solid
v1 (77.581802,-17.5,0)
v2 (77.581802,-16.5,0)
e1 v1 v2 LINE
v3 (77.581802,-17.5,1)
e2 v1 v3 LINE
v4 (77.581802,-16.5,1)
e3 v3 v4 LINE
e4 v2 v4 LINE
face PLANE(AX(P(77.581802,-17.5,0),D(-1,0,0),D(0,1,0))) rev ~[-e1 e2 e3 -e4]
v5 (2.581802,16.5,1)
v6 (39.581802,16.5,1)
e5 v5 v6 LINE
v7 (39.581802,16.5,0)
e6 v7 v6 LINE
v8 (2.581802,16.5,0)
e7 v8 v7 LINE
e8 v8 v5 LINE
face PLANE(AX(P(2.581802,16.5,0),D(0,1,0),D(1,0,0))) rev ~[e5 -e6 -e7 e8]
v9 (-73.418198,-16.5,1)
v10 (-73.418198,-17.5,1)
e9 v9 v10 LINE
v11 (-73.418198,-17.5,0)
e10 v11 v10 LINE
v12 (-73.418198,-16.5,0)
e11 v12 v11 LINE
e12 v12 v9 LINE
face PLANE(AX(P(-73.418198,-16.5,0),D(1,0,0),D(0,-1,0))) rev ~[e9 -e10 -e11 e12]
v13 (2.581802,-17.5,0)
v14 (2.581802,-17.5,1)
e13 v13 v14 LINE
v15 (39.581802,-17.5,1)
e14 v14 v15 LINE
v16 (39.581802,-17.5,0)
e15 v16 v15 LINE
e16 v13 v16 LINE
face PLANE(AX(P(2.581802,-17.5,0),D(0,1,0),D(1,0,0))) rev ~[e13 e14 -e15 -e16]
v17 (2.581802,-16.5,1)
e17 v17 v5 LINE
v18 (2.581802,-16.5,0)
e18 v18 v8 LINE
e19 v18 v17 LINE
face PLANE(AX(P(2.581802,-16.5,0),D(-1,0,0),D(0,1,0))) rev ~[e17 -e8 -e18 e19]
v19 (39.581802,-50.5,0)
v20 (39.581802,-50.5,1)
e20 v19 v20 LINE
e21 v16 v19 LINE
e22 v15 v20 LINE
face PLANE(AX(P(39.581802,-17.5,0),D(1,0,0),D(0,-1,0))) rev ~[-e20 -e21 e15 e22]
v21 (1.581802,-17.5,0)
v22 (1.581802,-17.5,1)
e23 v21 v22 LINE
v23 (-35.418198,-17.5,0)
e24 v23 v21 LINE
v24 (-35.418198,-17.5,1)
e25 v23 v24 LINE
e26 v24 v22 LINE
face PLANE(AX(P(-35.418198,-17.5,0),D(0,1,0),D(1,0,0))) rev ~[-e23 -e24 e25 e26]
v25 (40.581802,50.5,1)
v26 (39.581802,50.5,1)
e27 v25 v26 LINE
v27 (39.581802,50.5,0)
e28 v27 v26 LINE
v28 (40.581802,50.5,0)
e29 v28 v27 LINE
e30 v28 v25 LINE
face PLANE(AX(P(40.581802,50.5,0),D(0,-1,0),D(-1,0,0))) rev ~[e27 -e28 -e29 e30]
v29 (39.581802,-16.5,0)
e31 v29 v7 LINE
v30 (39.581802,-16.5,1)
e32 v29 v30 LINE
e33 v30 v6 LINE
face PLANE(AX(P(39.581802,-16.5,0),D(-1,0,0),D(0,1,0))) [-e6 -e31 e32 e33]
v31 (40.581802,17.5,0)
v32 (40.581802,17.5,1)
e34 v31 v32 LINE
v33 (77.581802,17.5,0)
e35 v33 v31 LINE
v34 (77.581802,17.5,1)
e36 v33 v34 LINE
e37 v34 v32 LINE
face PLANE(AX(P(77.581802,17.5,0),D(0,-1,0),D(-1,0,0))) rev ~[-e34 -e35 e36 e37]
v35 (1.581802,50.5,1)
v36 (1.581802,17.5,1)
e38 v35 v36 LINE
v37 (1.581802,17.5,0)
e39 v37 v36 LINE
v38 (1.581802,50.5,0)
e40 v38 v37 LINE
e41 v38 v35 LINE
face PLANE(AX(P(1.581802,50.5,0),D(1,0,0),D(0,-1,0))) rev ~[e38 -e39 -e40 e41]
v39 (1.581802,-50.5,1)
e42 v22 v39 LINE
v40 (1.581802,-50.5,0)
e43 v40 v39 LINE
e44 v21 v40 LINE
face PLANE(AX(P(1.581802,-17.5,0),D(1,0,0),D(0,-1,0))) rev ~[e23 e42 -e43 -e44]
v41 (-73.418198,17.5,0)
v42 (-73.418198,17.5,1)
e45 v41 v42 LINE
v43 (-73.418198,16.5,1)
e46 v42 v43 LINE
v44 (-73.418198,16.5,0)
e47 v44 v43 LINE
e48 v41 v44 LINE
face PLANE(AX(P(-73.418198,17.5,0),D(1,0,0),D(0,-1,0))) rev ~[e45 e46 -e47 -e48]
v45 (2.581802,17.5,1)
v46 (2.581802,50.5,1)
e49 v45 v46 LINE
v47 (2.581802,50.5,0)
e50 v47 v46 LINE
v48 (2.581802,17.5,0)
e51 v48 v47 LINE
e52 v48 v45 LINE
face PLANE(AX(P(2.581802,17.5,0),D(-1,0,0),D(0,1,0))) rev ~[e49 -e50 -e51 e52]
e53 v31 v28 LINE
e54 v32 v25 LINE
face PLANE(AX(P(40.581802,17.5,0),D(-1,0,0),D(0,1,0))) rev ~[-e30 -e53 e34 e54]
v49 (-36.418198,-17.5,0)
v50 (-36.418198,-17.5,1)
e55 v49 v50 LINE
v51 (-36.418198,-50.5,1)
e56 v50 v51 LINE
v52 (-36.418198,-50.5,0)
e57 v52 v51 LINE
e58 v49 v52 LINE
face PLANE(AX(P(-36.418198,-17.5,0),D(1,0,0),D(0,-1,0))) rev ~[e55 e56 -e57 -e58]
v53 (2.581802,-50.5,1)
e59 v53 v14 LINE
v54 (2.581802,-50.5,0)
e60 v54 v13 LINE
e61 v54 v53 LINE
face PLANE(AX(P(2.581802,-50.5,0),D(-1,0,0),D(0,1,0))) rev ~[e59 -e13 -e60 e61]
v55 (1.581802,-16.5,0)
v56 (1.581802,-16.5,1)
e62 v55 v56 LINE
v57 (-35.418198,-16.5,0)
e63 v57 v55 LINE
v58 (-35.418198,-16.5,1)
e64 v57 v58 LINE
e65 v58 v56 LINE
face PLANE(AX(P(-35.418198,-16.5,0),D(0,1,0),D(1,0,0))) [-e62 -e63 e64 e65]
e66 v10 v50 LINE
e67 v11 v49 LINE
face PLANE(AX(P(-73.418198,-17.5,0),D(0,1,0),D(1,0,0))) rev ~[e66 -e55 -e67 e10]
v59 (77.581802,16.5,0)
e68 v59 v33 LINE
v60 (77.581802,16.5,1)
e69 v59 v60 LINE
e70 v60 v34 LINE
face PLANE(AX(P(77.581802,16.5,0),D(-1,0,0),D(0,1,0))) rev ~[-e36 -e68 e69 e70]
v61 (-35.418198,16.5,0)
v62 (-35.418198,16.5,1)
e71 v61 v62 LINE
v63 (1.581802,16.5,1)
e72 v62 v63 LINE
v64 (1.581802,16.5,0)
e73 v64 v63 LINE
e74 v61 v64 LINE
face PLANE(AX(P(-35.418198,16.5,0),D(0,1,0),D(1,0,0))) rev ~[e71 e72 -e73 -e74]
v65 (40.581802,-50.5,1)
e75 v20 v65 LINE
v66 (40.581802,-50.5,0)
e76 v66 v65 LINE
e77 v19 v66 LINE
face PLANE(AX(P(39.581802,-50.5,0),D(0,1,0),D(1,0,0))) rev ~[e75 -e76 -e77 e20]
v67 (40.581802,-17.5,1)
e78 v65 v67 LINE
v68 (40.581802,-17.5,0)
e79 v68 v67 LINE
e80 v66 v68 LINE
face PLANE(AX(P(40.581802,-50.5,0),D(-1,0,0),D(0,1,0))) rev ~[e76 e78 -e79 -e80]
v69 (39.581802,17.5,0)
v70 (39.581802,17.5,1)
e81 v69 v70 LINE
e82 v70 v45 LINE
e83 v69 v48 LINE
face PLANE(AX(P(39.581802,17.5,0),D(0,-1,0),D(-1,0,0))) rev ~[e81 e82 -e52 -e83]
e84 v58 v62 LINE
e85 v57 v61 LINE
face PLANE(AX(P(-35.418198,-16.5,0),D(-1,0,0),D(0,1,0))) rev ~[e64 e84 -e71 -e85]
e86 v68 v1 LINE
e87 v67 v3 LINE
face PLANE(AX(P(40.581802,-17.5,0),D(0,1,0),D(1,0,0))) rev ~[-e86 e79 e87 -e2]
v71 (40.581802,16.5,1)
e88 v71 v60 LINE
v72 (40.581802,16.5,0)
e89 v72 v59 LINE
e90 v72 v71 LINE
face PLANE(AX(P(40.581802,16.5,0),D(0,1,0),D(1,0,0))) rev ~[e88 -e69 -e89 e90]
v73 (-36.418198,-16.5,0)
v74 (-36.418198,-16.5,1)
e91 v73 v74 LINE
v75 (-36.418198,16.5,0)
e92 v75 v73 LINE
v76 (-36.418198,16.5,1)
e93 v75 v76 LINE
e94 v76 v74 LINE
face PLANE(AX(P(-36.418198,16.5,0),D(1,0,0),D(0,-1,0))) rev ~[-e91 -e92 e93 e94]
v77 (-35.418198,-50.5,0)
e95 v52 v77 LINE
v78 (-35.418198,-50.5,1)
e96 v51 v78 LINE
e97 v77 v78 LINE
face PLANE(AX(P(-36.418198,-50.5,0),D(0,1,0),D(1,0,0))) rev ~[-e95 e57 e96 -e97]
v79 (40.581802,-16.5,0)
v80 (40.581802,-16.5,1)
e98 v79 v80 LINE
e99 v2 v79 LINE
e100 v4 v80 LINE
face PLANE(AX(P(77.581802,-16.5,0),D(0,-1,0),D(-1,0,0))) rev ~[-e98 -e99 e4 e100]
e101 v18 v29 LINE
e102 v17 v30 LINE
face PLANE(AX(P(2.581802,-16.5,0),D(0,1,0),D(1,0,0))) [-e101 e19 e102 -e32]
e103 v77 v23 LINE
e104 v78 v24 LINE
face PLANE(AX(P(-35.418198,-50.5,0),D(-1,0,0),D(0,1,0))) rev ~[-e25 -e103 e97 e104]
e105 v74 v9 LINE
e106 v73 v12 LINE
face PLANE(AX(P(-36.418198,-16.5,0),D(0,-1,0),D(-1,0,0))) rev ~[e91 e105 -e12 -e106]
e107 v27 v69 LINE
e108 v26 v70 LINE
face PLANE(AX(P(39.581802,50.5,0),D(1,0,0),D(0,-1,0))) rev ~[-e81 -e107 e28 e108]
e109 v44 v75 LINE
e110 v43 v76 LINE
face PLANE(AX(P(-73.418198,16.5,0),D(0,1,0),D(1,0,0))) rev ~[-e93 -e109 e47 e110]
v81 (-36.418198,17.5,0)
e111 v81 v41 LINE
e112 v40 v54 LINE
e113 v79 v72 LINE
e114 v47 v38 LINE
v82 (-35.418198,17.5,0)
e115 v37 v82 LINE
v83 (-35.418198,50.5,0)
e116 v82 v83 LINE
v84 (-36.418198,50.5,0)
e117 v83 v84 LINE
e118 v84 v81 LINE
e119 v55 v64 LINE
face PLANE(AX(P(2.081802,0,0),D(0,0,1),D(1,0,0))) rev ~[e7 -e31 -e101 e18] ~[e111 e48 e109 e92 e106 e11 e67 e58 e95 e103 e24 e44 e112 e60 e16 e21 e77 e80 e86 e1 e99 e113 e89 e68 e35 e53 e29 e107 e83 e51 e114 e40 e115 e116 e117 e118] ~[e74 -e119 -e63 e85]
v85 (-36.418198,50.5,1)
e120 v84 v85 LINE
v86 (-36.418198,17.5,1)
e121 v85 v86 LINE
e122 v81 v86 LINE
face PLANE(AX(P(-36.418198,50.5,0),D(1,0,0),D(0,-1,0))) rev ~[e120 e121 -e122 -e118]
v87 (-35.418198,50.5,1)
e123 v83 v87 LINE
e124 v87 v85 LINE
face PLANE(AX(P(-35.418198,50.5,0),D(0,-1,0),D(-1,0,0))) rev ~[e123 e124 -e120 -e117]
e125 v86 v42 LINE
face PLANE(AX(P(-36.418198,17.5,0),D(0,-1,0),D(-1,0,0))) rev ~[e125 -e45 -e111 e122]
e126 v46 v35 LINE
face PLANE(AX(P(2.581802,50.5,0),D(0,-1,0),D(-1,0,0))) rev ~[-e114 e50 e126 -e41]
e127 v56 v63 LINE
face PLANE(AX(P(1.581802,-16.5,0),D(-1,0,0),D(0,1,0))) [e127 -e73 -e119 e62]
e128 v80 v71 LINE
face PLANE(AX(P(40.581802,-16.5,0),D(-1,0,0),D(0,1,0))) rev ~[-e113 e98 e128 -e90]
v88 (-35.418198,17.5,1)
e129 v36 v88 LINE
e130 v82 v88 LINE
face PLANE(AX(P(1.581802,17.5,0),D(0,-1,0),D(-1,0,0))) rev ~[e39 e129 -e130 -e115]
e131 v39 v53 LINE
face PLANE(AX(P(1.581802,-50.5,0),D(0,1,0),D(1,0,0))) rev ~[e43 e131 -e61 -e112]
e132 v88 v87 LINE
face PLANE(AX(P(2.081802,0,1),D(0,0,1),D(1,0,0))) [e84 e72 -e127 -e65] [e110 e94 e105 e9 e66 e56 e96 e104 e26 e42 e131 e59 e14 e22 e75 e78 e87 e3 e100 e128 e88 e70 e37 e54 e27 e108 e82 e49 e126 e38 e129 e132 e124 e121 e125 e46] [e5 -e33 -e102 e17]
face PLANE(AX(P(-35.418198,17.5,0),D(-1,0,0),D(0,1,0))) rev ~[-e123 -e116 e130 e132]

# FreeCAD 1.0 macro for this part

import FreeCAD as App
import Part
import Sketcher

doc = App.newDocument("Part")
body = doc.addObject("PartDesign::Body", "Body")

sketch1 = body.newObject("Sketcher::SketchObject", "Sketch")
sketch1.AttachmentSupport = (doc.getObject("XY_Plane"), [""])
sketch1.MapMode = "FlatFace"
sketch1.addGeometry([
    Part.LineSegment(App.Vector(-35.4, 50.5, 0), App.Vector(-36.4, 50.5, 0)),
    Part.LineSegment(App.Vector(-36.4, 50.5, 0), App.Vector(-36.4, 17.5, 0)),
    Part.LineSegment(App.Vector(-36.4, 17.5, 0), App.Vector(-73.4, 17.5, 0)),
    Part.LineSegment(App.Vector(-73.4, 17.5, 0), App.Vector(-73.4, 16.5, 0)),
    Part.LineSegment(App.Vector(-73.4, 16.5, 0), App.Vector(-36.4, 16.5, 0)),
    Part.LineSegment(App.Vector(-36.4, 16.5, 0), App.Vector(-36.4, -16.5, 0)),
    Part.LineSegment(App.Vector(-36.4, -16.5, 0), App.Vector(-73.4, -16.5, 0)),
    Part.LineSegment(App.Vector(-73.4, -16.5, 0), App.Vector(-73.4, -17.5, 0)),
    Part.LineSegment(App.Vector(-73.4, -17.5, 0), App.Vector(-36.4, -17.5, 0)),
    Part.LineSegment(App.Vector(-36.4, -17.5, 0), App.Vector(-36.4, -50.5, 0)),
    Part.LineSegment(App.Vector(-36.4, -50.5, 0), App.Vector(-35.4, -50.5, 0)),
    Part.LineSegment(App.Vector(-35.4, -50.5, 0), App.Vector(-35.4, -17.5, 0)),
    Part.LineSegment(App.Vector(-35.4, -17.5, 0), App.Vector(1.6, -17.5, 0)),
    Part.LineSegment(App.Vector(1.6, -17.5, 0), App.Vector(1.6, -50.5, 0)),
    Part.LineSegment(App.Vector(1.6, -50.5, 0), App.Vector(2.6, -50.5, 0)),
    Part.LineSegment(App.Vector(2.6, -50.5, 0), App.Vector(2.6, -17.5, 0)),
    Part.LineSegment(App.Vector(2.6, -17.5, 0), App.Vector(39.6, -17.5, 0)),
    Part.LineSegment(App.Vector(39.6, -17.5, 0), App.Vector(39.6, -50.5, 0)),
    Part.LineSegment(App.Vector(39.6, -50.5, 0), App.Vector(40.6, -50.5, 0)),
    Part.LineSegment(App.Vector(40.6, -50.5, 0), App.Vector(40.6, -17.5, 0)),
    Part.LineSegment(App.Vector(40.6, -17.5, 0), App.Vector(77.6, -17.5, 0)),
    Part.LineSegment(App.Vector(77.6, -17.5, 0), App.Vector(77.6, -16.5, 0)),
    Part.LineSegment(App.Vector(77.6, -16.5, 0), App.Vector(40.6, -16.5, 0)),
    Part.LineSegment(App.Vector(40.6, -16.5, 0), App.Vector(40.6, 16.5, 0)),
    Part.LineSegment(App.Vector(40.6, 16.5, 0), App.Vector(77.6, 16.5, 0)),
    Part.LineSegment(App.Vector(77.6, 16.5, 0), App.Vector(77.6, 17.5, 0)),
    Part.LineSegment(App.Vector(77.6, 17.5, 0), App.Vector(40.6, 17.5, 0)),
    Part.LineSegment(App.Vector(40.6, 17.5, 0), App.Vector(40.6, 50.5, 0)),
    Part.LineSegment(App.Vector(40.6, 50.5, 0), App.Vector(39.6, 50.5, 0)),
    Part.LineSegment(App.Vector(39.6, 50.5, 0), App.Vector(39.6, 17.5, 0)),
    Part.LineSegment(App.Vector(39.6, 17.5, 0), App.Vector(2.6, 17.5, 0)),
    Part.LineSegment(App.Vector(2.6, 17.5, 0), App.Vector(2.6, 50.5, 0)),
    Part.LineSegment(App.Vector(2.6, 50.5, 0), App.Vector(1.6, 50.5, 0)),
    Part.LineSegment(App.Vector(1.6, 50.5, 0), App.Vector(1.6, 17.5, 0)),
    Part.LineSegment(App.Vector(1.6, 17.5, 0), App.Vector(-35.4, 17.5, 0)),
    Part.LineSegment(App.Vector(-35.4, 17.5, 0), App.Vector(-35.4, 50.5, 0)),
    Part.LineSegment(App.Vector(1.6, -16.5, 0), App.Vector(-35.4, -16.5, 0)),
    Part.LineSegment(App.Vector(-35.4, -16.5, 0), App.Vector(-35.4, 16.5, 0)),
    Part.LineSegment(App.Vector(-35.4, 16.5, 0), App.Vector(1.6, 16.5, 0)),
    Part.LineSegment(App.Vector(1.6, 16.5, 0), App.Vector(1.6, -16.5, 0)),
    Part.LineSegment(App.Vector(39.6, -16.5, 0), App.Vector(2.6, -16.5, 0)),
    Part.LineSegment(App.Vector(2.6, -16.5, 0), App.Vector(2.6, 16.5, 0)),
    Part.LineSegment(App.Vector(2.6, 16.5, 0), App.Vector(39.6, 16.5, 0)),
    Part.LineSegment(App.Vector(39.6, 16.5, 0), App.Vector(39.6, -16.5, 0)),
], False)
sketch1.addConstraint([
    Sketcher.Constraint("Coincident", 0, 2, 1, 1),
    Sketcher.Constraint("Coincident", 1, 2, 2, 1),
    Sketcher.Constraint("Coincident", 2, 2, 3, 1),
    Sketcher.Constraint("Coincident", 3, 2, 4, 1),
    Sketcher.Constraint("Coincident", 4, 2, 5, 1),
    Sketcher.Constraint("Coincident", 5, 2, 6, 1),
    Sketcher.Constraint("Coincident", 6, 2, 7, 1),
    Sketcher.Constraint("Coincident", 7, 2, 8, 1),
    Sketcher.Constraint("Coincident", 8, 2, 9, 1),
    Sketcher.Constraint("Coincident", 9, 2, 10, 1),
    Sketcher.Constraint("Coincident", 10, 2, 11, 1),
    Sketcher.Constraint("Coincident", 11, 2, 12, 1),
    Sketcher.Constraint("Coincident", 12, 2, 13, 1),
    Sketcher.Constraint("Coincident", 13, 2, 14, 1),
    Sketcher.Constraint("Coincident", 14, 2, 15, 1),
    Sketcher.Constraint("Coincident", 15, 2, 16, 1),
    Sketcher.Constraint("Coincident", 16, 2, 17, 1),
    Sketcher.Constraint("Coincident", 17, 2, 18, 1),
    Sketcher.Constraint("Coincident", 18, 2, 19, 1),
    Sketcher.Constraint("Coincident", 19, 2, 20, 1),
    Sketcher.Constraint("Coincident", 20, 2, 21, 1),
    Sketcher.Constraint("Coincident", 21, 2, 22, 1),
    Sketcher.Constraint("Coincident", 22, 2, 23, 1),
    Sketcher.Constraint("Coincident", 23, 2, 24, 1),
    Sketcher.Constraint("Coincident", 24, 2, 25, 1),
    Sketcher.Constraint("Coincident", 25, 2, 26, 1),
    Sketcher.Constraint("Coincident", 26, 2, 27, 1),
    Sketcher.Constraint("Coincident", 27, 2, 28, 1),
    Sketcher.Constraint("Coincident", 28, 2, 29, 1),
    Sketcher.Constraint("Coincident", 29, 2, 30, 1),
    Sketcher.Constraint("Coincident", 30, 2, 31, 1),
    Sketcher.Constraint("Coincident", 31, 2, 32, 1),
    Sketcher.Constraint("Coincident", 32, 2, 33, 1),
    Sketcher.Constraint("Coincident", 33, 2, 34, 1),
    Sketcher.Constraint("Coincident", 34, 2, 35, 1),
    Sketcher.Constraint("Coincident", 35, 2, 0, 1),
    Sketcher.Constraint("Coincident", 36, 2, 37, 1),
    Sketcher.Constraint("Coincident", 37, 2, 38, 1),
    Sketcher.Constraint("Coincident", 38, 2, 39, 1),
    Sketcher.Constraint("Coincident", 39, 2, 36, 1),
    Sketcher.Constraint("Coincident", 40, 2, 41, 1),
    Sketcher.Constraint("Coincident", 41, 2, 42, 1),
    Sketcher.Constraint("Coincident", 42, 2, 43, 1),
    Sketcher.Constraint("Coincident", 43, 2, 40, 1),
    Sketcher.Constraint("Horizontal", 0),
    Sketcher.Constraint("Vertical", 1),
    Sketcher.Constraint("Horizontal", 2),
    Sketcher.Constraint("Vertical", 3),
    Sketcher.Constraint("Horizontal", 4),
    Sketcher.Constraint("Vertical", 5),
    Sketcher.Constraint("Horizontal", 6),
    Sketcher.Constraint("Vertical", 7),
    Sketcher.Constraint("Horizontal", 8),
    Sketcher.Constraint("Vertical", 9),
    Sketcher.Constraint("Horizontal", 10),
    Sketcher.Constraint("Vertical", 11),
    Sketcher.Constraint("Horizontal", 12),
    Sketcher.Constraint("Vertical", 13),
    Sketcher.Constraint("Horizontal", 14),
    Sketcher.Constraint("Vertical", 15),
    Sketcher.Constraint("Horizontal", 16),
    Sketcher.Constraint("Vertical", 17),
    Sketcher.Constraint("Horizontal", 18),
    Sketcher.Constraint("Vertical", 19),
    Sketcher.Constraint("Horizontal", 20),
    Sketcher.Constraint("Vertical", 21),
    Sketcher.Constraint("Horizontal", 22),
    Sketcher.Constraint("Vertical", 23),
    Sketcher.Constraint("Horizontal", 24),
    Sketcher.Constraint("Vertical", 25),
    Sketcher.Constraint("Horizontal", 26),
    Sketcher.Constraint("Vertical", 27),
    Sketcher.Constraint("Horizontal", 28),
    Sketcher.Constraint("Vertical", 29),
    Sketcher.Constraint("Horizontal", 30),
    Sketcher.Constraint("Vertical", 31),
    Sketcher.Constraint("Horizontal", 32),
    Sketcher.Constraint("Vertical", 33),
    Sketcher.Constraint("Horizontal", 34),
    Sketcher.Constraint("Vertical", 35),
    Sketcher.Constraint("Horizontal", 36),
    Sketcher.Constraint("Vertical", 37),
    Sketcher.Constraint("Horizontal", 38),
    Sketcher.Constraint("Vertical", 39),
    Sketcher.Constraint("Horizontal", 40),
    Sketcher.Constraint("Vertical", 41),
    Sketcher.Constraint("Horizontal", 42),
    Sketcher.Constraint("Vertical", 43),
    Sketcher.Constraint("Symmetric", 3, 2, 6, 2, -1),
    Sketcher.Constraint("Symmetric", 1, 2, 8, 2, -1),
    Sketcher.Constraint("Symmetric", 21, 2, 24, 2, -1),
    Sketcher.Constraint("Symmetric", 19, 2, 26, 2, -1),
    Sketcher.Constraint("Symmetric", 17, 2, 28, 2, -1),
    Sketcher.Constraint("Symmetric", 15, 2, 30, 2, -1),
    Sketcher.Constraint("Symmetric", 13, 2, 32, 2, -1),
    Sketcher.Constraint("Symmetric", 11, 2, 34, 2, -1),
    Sketcher.Constraint("Horizontal", 8, 2, 11, 2),
    Sketcher.Constraint("Horizontal", 10, 2, 13, 2),
    Sketcher.Constraint("Horizontal", 12, 2, 15, 2),
    Sketcher.Constraint("Horizontal", 14, 2, 17, 2),
    Sketcher.Constraint("Horizontal", 16, 2, 19, 2),
    Sketcher.Constraint("Horizontal", 6, 2, 21, 2),
    Sketcher.Constraint("Horizontal", 0, 2, 27, 2),
    Sketcher.Constraint("Horizontal", 22, 2, 36, 2),
    Sketcher.Constraint("Horizontal", 24, 2, 37, 2),
    Sketcher.Constraint("Horizontal", 39, 2, 40, 2),
    Sketcher.Constraint("Horizontal", 38, 2, 41, 2),
    Sketcher.Constraint("Vertical", 1, 2, 4, 2),
    Sketcher.Constraint("Vertical", 19, 2, 22, 2),
    Sketcher.Constraint("Vertical", 35, 2, 36, 2),
    Sketcher.Constraint("Vertical", 33, 2, 38, 2),
    Sketcher.Constraint("Vertical", 31, 2, 40, 2),
    Sketcher.Constraint("Vertical", 29, 2, 42, 2),
    Sketcher.Constraint("Equal", 8, 12),
    Sketcher.Constraint("Equal", 10, 14),
    Sketcher.Constraint("Equal", 12, 16),
    Sketcher.Constraint("Equal", 14, 18),
    Sketcher.Constraint("Equal", 16, 20),
    Sketcher.Constraint("Equal", 32, 3),
    Sketcher.Constraint("Equal", 1, 5),
    Sketcher.Constraint("DistanceX", 0, 2, 0, 1, 1.0),
    Sketcher.Constraint("DistanceX", 2, 2, 2, 1, 37.0),
    Sketcher.Constraint("DistanceY", 1, 2, 1, 1, 33.0),
    Sketcher.Constraint("DistanceX", 2, 2, -1, 1, 73.418198),
])
pad1 = body.newObject("PartDesign::Pad", "Pad")
pad1.Profile = sketch1
pad1.Length = 1

doc.recompute()
